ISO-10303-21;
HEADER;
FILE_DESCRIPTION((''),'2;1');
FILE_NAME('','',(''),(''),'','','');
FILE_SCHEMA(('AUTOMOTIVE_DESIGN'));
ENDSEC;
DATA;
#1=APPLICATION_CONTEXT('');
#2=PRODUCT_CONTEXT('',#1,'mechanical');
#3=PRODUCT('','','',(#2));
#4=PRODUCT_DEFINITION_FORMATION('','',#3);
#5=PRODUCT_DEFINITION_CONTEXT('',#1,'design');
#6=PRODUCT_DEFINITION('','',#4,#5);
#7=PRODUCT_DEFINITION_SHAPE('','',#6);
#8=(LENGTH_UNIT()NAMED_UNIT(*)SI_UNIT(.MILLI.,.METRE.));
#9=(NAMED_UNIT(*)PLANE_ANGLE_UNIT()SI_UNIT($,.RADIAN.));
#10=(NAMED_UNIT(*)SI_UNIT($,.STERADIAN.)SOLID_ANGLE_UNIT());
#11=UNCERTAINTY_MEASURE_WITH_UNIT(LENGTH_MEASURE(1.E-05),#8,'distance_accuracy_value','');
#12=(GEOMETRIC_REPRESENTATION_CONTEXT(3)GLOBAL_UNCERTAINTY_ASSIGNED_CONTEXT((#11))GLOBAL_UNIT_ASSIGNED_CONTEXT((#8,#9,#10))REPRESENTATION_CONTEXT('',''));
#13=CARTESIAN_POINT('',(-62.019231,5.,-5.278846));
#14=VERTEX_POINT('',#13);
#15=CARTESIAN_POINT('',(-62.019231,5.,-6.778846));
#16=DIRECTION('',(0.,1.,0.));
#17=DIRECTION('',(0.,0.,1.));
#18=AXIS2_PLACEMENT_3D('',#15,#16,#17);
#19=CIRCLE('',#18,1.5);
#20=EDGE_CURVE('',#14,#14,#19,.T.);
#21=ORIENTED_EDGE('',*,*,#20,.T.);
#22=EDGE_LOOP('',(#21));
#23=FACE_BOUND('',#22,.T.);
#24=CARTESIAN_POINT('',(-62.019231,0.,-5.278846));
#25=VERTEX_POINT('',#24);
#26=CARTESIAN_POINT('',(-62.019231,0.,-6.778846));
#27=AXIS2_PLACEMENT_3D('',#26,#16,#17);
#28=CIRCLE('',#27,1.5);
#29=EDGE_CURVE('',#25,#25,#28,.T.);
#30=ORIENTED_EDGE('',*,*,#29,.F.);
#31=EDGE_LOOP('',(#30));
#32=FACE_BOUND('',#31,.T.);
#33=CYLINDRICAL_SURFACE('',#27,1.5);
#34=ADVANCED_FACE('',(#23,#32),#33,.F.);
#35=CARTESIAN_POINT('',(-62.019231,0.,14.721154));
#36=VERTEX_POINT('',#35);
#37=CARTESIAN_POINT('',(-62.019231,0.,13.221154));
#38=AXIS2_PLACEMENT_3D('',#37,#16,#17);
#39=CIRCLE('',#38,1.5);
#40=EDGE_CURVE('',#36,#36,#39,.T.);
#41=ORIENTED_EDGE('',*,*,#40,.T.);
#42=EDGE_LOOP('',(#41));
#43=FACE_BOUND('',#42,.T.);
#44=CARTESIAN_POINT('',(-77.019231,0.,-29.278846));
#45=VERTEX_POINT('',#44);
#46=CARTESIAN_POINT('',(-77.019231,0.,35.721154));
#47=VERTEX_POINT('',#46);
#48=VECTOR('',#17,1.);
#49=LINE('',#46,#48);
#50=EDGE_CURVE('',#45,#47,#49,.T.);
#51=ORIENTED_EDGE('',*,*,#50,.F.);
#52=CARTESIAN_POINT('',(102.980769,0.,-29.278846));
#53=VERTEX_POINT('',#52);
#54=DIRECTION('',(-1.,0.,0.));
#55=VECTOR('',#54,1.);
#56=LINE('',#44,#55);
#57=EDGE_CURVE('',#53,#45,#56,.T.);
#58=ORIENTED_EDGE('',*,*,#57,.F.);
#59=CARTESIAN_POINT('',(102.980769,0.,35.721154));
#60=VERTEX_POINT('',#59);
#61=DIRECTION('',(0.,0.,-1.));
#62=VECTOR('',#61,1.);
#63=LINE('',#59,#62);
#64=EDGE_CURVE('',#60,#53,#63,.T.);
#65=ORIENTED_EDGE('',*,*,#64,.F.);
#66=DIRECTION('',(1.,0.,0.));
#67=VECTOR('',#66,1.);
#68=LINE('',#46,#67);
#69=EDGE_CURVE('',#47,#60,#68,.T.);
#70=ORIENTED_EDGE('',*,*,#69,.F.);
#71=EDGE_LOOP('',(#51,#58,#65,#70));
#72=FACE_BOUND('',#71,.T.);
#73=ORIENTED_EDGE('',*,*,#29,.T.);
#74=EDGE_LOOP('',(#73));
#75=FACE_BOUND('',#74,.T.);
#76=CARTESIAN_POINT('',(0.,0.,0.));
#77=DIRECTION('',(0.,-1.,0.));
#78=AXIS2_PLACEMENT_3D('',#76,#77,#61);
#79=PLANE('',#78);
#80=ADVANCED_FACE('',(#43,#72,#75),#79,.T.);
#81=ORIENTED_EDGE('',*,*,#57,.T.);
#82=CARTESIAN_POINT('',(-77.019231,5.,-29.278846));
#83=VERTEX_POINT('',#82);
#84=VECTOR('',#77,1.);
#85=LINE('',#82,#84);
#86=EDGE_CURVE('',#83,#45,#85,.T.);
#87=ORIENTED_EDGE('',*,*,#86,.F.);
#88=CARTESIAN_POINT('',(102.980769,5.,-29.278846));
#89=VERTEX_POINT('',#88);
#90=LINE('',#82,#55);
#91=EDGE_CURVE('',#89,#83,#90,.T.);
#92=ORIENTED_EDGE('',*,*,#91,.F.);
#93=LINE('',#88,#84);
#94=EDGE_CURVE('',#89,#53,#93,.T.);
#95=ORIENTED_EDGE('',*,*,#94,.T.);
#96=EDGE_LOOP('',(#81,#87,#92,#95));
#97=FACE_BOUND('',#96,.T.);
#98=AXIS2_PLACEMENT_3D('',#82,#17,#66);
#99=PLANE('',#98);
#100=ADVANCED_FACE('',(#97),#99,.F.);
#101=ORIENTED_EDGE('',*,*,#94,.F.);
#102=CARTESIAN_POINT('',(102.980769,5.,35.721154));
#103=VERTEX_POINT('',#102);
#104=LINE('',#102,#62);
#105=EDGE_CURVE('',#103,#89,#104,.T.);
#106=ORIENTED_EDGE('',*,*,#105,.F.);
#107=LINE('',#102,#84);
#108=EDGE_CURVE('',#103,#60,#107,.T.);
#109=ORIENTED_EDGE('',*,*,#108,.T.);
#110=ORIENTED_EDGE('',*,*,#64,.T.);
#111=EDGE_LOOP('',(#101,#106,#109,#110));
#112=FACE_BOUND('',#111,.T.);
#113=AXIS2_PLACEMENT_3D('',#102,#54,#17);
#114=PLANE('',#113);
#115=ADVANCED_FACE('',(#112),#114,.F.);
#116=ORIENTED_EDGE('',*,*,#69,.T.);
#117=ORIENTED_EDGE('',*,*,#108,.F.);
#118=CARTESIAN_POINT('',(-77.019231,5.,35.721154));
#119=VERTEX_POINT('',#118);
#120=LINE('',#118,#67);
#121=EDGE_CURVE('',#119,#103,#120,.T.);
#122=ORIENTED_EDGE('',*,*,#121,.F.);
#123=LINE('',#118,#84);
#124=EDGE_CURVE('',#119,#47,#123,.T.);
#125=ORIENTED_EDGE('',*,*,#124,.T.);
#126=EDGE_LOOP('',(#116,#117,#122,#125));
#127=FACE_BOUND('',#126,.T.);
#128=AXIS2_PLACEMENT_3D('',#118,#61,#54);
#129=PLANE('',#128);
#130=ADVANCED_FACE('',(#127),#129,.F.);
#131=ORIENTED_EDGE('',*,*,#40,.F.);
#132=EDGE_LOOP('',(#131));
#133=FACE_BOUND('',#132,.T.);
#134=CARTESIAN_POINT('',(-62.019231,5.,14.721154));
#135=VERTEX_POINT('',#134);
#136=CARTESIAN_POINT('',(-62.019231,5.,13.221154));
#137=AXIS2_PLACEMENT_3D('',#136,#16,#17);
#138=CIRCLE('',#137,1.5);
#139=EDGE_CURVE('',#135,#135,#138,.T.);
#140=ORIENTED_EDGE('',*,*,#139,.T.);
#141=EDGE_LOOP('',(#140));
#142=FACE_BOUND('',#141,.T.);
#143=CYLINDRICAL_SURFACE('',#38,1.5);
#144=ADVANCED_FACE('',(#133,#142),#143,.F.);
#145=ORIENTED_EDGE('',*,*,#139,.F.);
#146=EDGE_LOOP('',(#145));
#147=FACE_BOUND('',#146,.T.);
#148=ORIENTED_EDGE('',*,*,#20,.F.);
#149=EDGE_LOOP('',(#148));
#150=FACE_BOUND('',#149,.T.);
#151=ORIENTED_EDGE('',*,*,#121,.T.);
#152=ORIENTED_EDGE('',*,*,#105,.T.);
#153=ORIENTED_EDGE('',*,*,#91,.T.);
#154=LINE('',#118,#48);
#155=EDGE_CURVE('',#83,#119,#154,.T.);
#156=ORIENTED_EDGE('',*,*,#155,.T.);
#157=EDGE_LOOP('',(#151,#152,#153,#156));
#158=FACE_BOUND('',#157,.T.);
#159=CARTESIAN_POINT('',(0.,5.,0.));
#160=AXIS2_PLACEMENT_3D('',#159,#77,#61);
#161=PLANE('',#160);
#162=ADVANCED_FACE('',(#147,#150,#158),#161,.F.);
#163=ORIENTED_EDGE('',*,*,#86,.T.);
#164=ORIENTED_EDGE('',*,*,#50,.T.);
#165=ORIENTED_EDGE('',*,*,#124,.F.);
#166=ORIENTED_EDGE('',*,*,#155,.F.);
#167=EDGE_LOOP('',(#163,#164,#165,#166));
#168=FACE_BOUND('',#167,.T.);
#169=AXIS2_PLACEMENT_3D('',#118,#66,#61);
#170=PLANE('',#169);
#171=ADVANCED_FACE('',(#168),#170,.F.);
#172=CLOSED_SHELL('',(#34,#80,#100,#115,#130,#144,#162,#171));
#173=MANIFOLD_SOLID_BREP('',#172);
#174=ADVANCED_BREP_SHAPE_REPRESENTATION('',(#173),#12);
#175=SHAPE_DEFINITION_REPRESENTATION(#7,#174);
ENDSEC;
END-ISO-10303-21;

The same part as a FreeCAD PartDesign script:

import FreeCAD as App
import Part
import Sketcher
from FreeCAD import Vector
Q = App.Units.Quantity


def add_polygon(sketch, points):
    """Adds a closed chain of lines whose ends are joined by coincident constraints."""
    first, n = sketch.GeometryCount, len(points)
    for a, b in zip(points, points[1:] + points[:1]):
        sketch.addGeometry(Part.LineSegment(App.Vector(*a, 0), App.Vector(*b, 0)), False)
    for i in range(n):
        sketch.addConstraint(Sketcher.Constraint("Coincident", first + i, 2, first + (i + 1) % n, 1))

doc = App.newDocument("Part")
body = doc.addObject("PartDesign::Body", "Body")

# Sketch on XZ plane
sketch1 = body.newObject("Sketcher::SketchObject", "Sketch")
sketch1.AttachmentSupport = (doc.getObject("XZ_Plane"), [""])
sketch1.MapMode = "FlatFace"
add_polygon(sketch1, [(-77, -29), (-77, 36), (103, 36), (103, -29)])  # lines 0-3
sketch1.addConstraint([
    Sketcher.Constraint("Vertical", 0),
    Sketcher.Constraint("Horizontal", 1),
    Sketcher.Constraint("Vertical", 2),
    Sketcher.Constraint("Horizontal", 3),
    Sketcher.Constraint("DistanceX", 1, 1, 1, 2, Q("180 mm")),
    Sketcher.Constraint("DistanceY", 0, 1, 0, 2, Q("65 mm")),
    Sketcher.Constraint("DistanceX", 0, 2, -1, 1, Q("77.019231 mm")),
    Sketcher.Constraint("DistanceY", -1, 1, 0, 2, Q("35.721154 mm")),
])
pad1 = body.newObject("PartDesign::Pad", "Pad")
pad1.Profile = sketch1
pad1.Length = 5
pad1.Reversed = True

# Sketch on XZ plane
sketch2 = body.newObject("Sketcher::SketchObject", "Sketch001")
sketch2.AttachmentSupport = (doc.getObject("XZ_Plane"), [""])
sketch2.MapMode = "FlatFace"
sketch2.AttachmentOffset = App.Placement(Vector(0, 0, -5), App.Rotation())
sketch2.addGeometry([
    Part.Circle(Vector(-62, -6.8, 0), Vector(0, 0, 1), 1.5),
    Part.Circle(Vector(-62, 13.2, 0), Vector(0, 0, 1), 1.5),
], False)
sketch2.addConstraint([
    Sketcher.Constraint("Equal", 0, 1),
    Sketcher.Constraint("Vertical", 0, 3, 1, 3),
    Sketcher.Constraint("Diameter", 0, Q("3 mm")),
    Sketcher.Constraint("DistanceY", 0, 3, 1, 3, Q("20 mm")),
    Sketcher.Constraint("DistanceX", 0, 3, -1, 1, Q("62.019231 mm")),
    Sketcher.Constraint("DistanceY", 0, 3, -1, 1, Q("6.778846 mm")),
])
pocket1 = body.newObject("PartDesign::Pocket", "Pocket")
pocket1.Profile = sketch2
pocket1.Type = "ThroughAll"
pocket1.Reversed = True

doc.recompute()
